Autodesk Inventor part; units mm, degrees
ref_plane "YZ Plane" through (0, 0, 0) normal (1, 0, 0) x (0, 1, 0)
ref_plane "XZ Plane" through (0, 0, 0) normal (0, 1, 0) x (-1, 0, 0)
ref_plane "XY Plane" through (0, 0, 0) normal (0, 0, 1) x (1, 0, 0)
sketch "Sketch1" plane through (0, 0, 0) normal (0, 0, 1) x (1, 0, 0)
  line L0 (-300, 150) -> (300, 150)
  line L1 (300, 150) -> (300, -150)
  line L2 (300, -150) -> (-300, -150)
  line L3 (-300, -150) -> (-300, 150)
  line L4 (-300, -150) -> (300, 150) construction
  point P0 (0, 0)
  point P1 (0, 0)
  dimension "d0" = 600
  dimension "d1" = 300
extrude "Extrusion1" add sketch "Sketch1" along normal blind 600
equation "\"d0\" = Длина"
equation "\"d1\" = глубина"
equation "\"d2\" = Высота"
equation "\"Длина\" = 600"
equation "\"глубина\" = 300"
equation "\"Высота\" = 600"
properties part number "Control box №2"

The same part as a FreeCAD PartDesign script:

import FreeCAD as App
import Part
import Sketcher
from FreeCAD import Vector
Q = App.Units.Quantity

doc = App.newDocument("Part")
body = doc.addObject("PartDesign::Body", "Body")

# Sketch on XY plane
sketch1 = body.newObject("Sketcher::SketchObject", "Sketch")
sketch1.AttachmentSupport = (doc.getObject("XY_Plane"), [""])
sketch1.MapMode = "FlatFace"
sketch1.addGeometry([
    Part.LineSegment(Vector(300, 150, 0), Vector(-300, 150, 0)),
    Part.LineSegment(Vector(-300, 150, 0), Vector(-300, -150, 0)),
    Part.LineSegment(Vector(-300, -150, 0), Vector(300, -150, 0)),
    Part.LineSegment(Vector(300, -150, 0), Vector(300, 150, 0)),
], False)
sketch1.addConstraint([
    Sketcher.Constraint("Coincident", 0, 2, 1, 1),
    Sketcher.Constraint("Coincident", 1, 2, 2, 1),
    Sketcher.Constraint("Coincident", 2, 2, 3, 1),
    Sketcher.Constraint("Coincident", 3, 2, 0, 1),
    Sketcher.Constraint("Horizontal", 0),
    Sketcher.Constraint("Vertical", 1),
    Sketcher.Constraint("Horizontal", 2),
    Sketcher.Constraint("Vertical", 3),
    Sketcher.Constraint("Symmetric", 0, 2, 2, 2, -1, 1),
    Sketcher.Constraint("DistanceX", 0, 2, 0, 1, Q("600 mm")),
    Sketcher.Constraint("DistanceY", 1, 2, 1, 1, Q("300 mm")),
])
pad1 = body.newObject("PartDesign::Pad", "Pad")
pad1.Profile = sketch1
pad1.Length = 600

doc.recompute()
